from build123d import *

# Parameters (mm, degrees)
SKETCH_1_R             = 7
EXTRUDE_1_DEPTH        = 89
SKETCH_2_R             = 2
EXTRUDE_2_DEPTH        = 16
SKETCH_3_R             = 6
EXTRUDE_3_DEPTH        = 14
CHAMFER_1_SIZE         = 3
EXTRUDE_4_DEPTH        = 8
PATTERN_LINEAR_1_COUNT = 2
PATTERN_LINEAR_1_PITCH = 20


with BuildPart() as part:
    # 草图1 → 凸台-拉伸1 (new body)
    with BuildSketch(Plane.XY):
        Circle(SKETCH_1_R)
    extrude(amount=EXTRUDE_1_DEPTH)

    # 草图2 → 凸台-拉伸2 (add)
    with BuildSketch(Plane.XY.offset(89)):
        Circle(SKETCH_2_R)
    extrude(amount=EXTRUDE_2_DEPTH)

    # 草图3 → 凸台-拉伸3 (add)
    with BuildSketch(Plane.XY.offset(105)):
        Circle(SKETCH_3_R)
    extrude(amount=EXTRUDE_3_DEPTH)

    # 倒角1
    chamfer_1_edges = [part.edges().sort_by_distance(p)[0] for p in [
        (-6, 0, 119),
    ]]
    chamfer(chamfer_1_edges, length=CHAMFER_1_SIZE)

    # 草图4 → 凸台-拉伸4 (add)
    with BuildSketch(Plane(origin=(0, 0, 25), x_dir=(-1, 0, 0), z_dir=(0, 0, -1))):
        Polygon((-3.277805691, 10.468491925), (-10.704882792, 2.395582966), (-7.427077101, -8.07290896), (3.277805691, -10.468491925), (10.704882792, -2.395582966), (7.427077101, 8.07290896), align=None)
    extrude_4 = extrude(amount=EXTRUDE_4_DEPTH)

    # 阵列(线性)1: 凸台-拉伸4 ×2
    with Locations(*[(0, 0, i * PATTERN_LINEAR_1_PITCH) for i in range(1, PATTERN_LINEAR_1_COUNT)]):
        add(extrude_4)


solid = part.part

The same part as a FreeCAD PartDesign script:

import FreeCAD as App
import Part
import Sketcher
from FreeCAD import Vector
Q = App.Units.Quantity


def edges_at(feature, points):
    """Names of the edges that pass closest to the given points."""
    edges = feature.Shape.Edges
    near = lambda p: min(range(len(edges)), key=lambda i: edges[i].distToShape(Part.Vertex(*p))[0])
    return sorted({f"Edge{near(p) + 1}" for p in points})


def add_polygon(sketch, points):
    """Adds a closed chain of lines whose ends are joined by coincident constraints."""
    first, n = sketch.GeometryCount, len(points)
    for a, b in zip(points, points[1:] + points[:1]):
        sketch.addGeometry(Part.LineSegment(App.Vector(*a, 0), App.Vector(*b, 0)), False)
    for i in range(n):
        sketch.addConstraint(Sketcher.Constraint("Coincident", first + i, 2, first + (i + 1) % n, 1))

doc = App.newDocument("Part")
params = doc.addObject("Spreadsheet::Sheet", "Params")
for row, (alias, value) in enumerate([
    ("sketch1_diameter", "14 mm"),
    ("pad1_length", "89 mm"),
    ("sketch2_diameter", "4 mm"),
    ("pad2_length", "16 mm"),
    ("sketch3_diameter", "12 mm"),
    ("pad3_length", "14 mm"),
    ("chamfer_size", "3 mm"),
    ("pad4_length", "8 mm"),
    ("linearpattern_pitch", "20 mm"),
], start=1):
    params.set(f"A{row}", alias)
    params.set(f"B{row}", "=" + value)
    params.setAlias(f"B{row}", alias)

body = doc.addObject("PartDesign::Body", "Body")

# Sketch on XY plane
sketch1 = body.newObject("Sketcher::SketchObject", "Sketch")
sketch1.AttachmentSupport = (doc.getObject("XY_Plane"), [""])
sketch1.MapMode = "FlatFace"
sketch1.addGeometry(Part.Circle(Vector(0, 0, 0), Vector(0, 0, 1), 7), False)
sketch1.addConstraint([
    Sketcher.Constraint("Coincident", 0, 3, -1, 1),
    Sketcher.Constraint("Diameter", 0, Q("14 mm")),
])
sketch1.setExpression("Constraints[1]", "Params.sketch1_diameter")
pad1 = body.newObject("PartDesign::Pad", "Pad")
pad1.Profile = sketch1
pad1.setExpression("Length", "Params.pad1_length")

# Sketch on XY plane
sketch2 = body.newObject("Sketcher::SketchObject", "Sketch001")
sketch2.AttachmentSupport = (doc.getObject("XY_Plane"), [""])
sketch2.MapMode = "FlatFace"
sketch2.AttachmentOffset = App.Placement(Vector(0, 0, 89), App.Rotation())
sketch2.addGeometry(Part.Circle(Vector(0, 0, 0), Vector(0, 0, 1), 2), False)
sketch2.addConstraint([
    Sketcher.Constraint("Coincident", 0, 3, -1, 1),
    Sketcher.Constraint("Diameter", 0, Q("4 mm")),
])
sketch2.setExpression("Constraints[1]", "Params.sketch2_diameter")
pad2 = body.newObject("PartDesign::Pad", "Pad001")
pad2.Profile = sketch2
pad2.setExpression("Length", "Params.pad2_length")

# Sketch on XY plane
sketch3 = body.newObject("Sketcher::SketchObject", "Sketch002")
sketch3.AttachmentSupport = (doc.getObject("XY_Plane"), [""])
sketch3.MapMode = "FlatFace"
sketch3.AttachmentOffset = App.Placement(Vector(0, 0, 105), App.Rotation())
sketch3.addGeometry(Part.Circle(Vector(0, 0, 0), Vector(0, 0, 1), 6), False)
sketch3.addConstraint([
    Sketcher.Constraint("Coincident", 0, 3, -1, 1),
    Sketcher.Constraint("Diameter", 0, Q("12 mm")),
])
sketch3.setExpression("Constraints[1]", "Params.sketch3_diameter")
pad3 = body.newObject("PartDesign::Pad", "Pad002")
pad3.Profile = sketch3
pad3.setExpression("Length", "Params.pad3_length")
doc.recompute()

chamfer = body.newObject("PartDesign::Chamfer", "Chamfer")
chamfer.Base = (pad3, edges_at(pad3, [(-6, 0, 119)]))
chamfer.setExpression("Size", "Params.chamfer_size")

# Sketch on XY plane
sketch4 = body.newObject("Sketcher::SketchObject", "Sketch003")
sketch4.AttachmentSupport = (doc.getObject("XY_Plane"), [""])
sketch4.MapMode = "FlatFace"
sketch4.AttachmentOffset = App.Placement(Vector(0, 0, 25), App.Rotation())
add_polygon(sketch4, [(3, 10), (11, 2), (7, -8), (-3, -10), (-11, -2), (-7, 8)])  # lines 0-5
sketch4.addConstraint([
    Sketcher.Constraint("Symmetric", 0, 2, 3, 2, -1, 1),
    Sketcher.Constraint("Symmetric", 1, 2, 4, 2, -1, 1),
    Sketcher.Constraint("Symmetric", 2, 2, 5, 2, -1, 1),
    Sketcher.Constraint("Equal", 0, 1),
    Sketcher.Constraint("Equal", 1, 2),
    Sketcher.Constraint("DistanceY", 2, 2, 4, 2, Q("18.541401 mm")),
    Sketcher.Constraint("DistanceY", 1, 2, -1, 1, Q("8.072909 mm")),
    Sketcher.Constraint("DistanceY", 1, 2, 0, 2, Q("10.468492 mm")),
    Sketcher.Constraint("DistanceX", 2, 2, 0, 2, Q("13.982688 mm")),
])
pad4 = body.newObject("PartDesign::Pad", "Pad003")
pad4.Profile = sketch4
pad4.setExpression("Length", "Params.pad4_length")
pad4.Reversed = True
doc.recompute()

linearpattern = body.newObject("PartDesign::LinearPattern", "LinearPattern")
linearpattern.Originals = [pad4]
linearpattern.Direction = (doc.getObject("Z_Axis"), [""])
linearpattern.Mode = "offset"
linearpattern.setExpression("Offset", "Params.linearpattern_pitch")
linearpattern.Occurrences = 2
body.Tip = linearpattern

doc.recompute()
